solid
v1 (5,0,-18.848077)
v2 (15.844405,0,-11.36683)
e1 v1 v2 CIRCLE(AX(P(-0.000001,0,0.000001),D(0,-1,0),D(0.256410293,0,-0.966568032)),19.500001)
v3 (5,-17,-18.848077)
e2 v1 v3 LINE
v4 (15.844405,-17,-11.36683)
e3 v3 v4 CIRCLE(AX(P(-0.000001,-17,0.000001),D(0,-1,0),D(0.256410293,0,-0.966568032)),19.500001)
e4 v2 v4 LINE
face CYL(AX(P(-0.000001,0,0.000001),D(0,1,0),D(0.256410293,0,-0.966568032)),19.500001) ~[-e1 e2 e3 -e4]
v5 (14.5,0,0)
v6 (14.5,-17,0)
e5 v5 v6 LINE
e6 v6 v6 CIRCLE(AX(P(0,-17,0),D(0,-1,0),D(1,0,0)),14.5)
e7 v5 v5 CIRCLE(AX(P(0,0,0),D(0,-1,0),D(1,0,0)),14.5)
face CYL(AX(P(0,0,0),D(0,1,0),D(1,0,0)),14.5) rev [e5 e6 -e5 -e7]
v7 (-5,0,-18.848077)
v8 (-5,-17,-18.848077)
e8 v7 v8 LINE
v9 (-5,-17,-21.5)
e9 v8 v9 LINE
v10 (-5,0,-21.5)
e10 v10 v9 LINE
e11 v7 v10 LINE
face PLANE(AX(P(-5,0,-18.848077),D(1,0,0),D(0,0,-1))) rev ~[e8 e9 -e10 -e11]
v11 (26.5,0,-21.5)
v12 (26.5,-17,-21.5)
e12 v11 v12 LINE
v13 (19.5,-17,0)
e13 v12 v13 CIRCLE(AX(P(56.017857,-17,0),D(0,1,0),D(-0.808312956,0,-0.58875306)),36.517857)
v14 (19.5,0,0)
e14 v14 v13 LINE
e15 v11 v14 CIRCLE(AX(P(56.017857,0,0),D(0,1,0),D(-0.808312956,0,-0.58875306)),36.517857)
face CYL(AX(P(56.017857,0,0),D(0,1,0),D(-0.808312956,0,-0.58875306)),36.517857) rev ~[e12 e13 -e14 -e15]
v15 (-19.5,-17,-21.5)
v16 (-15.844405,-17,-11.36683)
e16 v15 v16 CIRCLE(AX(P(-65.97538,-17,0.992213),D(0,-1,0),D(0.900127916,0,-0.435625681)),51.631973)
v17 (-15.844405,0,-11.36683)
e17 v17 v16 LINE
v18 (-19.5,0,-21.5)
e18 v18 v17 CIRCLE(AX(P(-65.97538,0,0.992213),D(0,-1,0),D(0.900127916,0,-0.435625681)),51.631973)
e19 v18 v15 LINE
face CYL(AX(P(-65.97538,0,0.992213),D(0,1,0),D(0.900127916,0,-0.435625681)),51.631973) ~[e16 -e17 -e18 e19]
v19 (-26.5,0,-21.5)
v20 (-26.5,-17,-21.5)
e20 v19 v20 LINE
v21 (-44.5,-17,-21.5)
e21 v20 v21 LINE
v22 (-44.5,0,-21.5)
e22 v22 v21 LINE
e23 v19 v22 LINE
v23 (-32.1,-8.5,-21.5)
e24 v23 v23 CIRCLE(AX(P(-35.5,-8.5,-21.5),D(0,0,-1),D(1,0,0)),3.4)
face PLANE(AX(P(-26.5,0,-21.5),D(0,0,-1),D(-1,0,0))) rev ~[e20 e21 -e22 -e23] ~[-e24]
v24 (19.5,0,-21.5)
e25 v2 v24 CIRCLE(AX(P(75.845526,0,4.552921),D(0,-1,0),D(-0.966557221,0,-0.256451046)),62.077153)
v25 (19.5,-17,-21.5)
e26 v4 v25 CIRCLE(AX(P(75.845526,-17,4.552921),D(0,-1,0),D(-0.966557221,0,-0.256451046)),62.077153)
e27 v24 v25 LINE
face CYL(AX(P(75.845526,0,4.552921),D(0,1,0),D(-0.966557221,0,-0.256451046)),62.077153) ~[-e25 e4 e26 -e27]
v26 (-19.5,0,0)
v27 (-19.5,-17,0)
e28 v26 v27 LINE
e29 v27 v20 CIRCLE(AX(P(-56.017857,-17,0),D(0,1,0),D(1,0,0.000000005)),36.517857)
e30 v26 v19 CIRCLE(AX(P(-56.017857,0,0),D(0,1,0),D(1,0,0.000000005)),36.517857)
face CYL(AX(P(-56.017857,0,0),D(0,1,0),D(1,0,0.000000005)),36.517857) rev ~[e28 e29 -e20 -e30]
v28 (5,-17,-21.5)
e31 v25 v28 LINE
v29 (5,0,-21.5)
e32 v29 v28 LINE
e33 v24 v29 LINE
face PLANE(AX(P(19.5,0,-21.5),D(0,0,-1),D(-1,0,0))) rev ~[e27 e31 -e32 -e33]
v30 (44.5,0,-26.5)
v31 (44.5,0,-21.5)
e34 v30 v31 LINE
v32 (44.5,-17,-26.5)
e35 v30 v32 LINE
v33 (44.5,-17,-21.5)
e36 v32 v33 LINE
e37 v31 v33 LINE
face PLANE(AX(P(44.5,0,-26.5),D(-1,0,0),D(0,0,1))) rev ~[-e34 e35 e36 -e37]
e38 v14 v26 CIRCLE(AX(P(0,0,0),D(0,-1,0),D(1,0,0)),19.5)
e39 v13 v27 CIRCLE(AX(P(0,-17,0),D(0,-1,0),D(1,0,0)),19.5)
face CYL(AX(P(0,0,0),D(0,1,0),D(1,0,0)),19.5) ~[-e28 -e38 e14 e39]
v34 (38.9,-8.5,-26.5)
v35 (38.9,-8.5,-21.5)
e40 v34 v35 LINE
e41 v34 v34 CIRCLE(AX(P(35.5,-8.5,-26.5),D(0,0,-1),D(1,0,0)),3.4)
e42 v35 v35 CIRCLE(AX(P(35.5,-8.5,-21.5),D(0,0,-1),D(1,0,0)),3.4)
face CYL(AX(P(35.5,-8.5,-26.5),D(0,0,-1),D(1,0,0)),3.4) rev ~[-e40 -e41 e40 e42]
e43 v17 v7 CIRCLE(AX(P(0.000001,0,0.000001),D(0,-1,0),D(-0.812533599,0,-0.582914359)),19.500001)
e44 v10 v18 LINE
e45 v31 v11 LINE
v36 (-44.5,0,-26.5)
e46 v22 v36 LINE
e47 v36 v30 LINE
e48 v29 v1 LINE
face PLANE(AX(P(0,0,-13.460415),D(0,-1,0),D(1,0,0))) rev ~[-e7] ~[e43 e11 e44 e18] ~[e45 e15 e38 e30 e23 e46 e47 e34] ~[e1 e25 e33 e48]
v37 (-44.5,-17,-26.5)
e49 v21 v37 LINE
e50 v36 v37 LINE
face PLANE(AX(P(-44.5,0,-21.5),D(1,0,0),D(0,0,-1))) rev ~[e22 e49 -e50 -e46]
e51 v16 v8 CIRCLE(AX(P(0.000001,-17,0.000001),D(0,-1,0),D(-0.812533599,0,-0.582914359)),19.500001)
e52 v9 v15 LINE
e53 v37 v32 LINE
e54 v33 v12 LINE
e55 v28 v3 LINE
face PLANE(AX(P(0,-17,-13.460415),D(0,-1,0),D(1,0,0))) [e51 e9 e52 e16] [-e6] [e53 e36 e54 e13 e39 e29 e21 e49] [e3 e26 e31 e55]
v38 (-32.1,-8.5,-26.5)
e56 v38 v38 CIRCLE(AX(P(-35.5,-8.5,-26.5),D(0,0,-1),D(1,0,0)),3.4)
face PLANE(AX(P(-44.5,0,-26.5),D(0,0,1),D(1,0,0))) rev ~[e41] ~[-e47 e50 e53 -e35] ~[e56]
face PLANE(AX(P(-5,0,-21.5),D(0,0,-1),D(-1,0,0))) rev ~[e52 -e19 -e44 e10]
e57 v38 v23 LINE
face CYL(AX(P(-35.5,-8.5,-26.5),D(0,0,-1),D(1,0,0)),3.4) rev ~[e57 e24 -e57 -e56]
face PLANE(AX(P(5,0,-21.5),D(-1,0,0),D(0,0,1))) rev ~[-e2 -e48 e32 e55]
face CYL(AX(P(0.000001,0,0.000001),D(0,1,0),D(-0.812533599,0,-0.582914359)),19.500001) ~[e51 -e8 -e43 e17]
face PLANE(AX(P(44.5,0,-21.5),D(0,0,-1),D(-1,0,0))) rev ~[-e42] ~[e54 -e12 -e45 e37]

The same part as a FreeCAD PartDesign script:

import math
import FreeCAD as App
import Part
import Sketcher

V = App.Vector

doc = App.newDocument("Part")
body = doc.addObject("PartDesign::Body", "Body")

# Sketch on XZ plane
sketch1 = body.newObject("Sketcher::SketchObject", "Sketch")
sketch1.AttachmentSupport = (doc.getObject("XZ_Plane"), [""])
sketch1.MapMode = "FlatFace"
sketch1.addGeometry(Part.LineSegment(V(-44.5, -21.5, 0), V(-44.5, -26.5, 0)), False)
sketch1.addGeometry(Part.LineSegment(V(-44.5, -26.5, 0), V(44.5, -26.5, 0)), False)
sketch1.addGeometry(Part.LineSegment(V(44.5, -26.5, 0), V(44.5, -21.5, 0)), False)
sketch1.addGeometry(Part.LineSegment(V(44.5, -21.5, 0), V(26.5, -21.5, 0)), False)
sketch1.addGeometry(Part.ArcOfCircle(Part.Circle(V(56, 0, 0), V(0, 0, 1), 36.5), math.radians(180), math.radians(216)), False)
sketch1.addGeometry(Part.ArcOfCircle(Part.Circle(V(0, 0, 0), V(0, 0, 1), 19.5), math.radians(0), math.radians(180)), False)
sketch1.addGeometry(Part.ArcOfCircle(Part.Circle(V(-56, 0, 0), V(0, 0, 1), 36.5), math.radians(-36), math.radians(0)), False)
sketch1.addGeometry(Part.LineSegment(V(-26.5, -21.5, 0), V(-44.5, -21.5, 0)), False)
sketch1.addGeometry(Part.LineSegment(V(19.5, -21.5, 0), V(5, -21.5, 0)), False)
sketch1.addGeometry(Part.LineSegment(V(5, -21.5, 0), V(5, -18.8, 0)), False)
sketch1.addGeometry(Part.ArcOfCircle(Part.Circle(V(0, 0, 0), V(0, 0, 1), 19.5), math.radians(-75), math.radians(-36)), False)
sketch1.addGeometry(Part.ArcOfCircle(Part.Circle(V(75.8, 4.6, 0), V(0, 0, 1), 62.1), math.radians(-165.14), math.radians(-155.19)), False)
sketch1.addGeometry(Part.LineSegment(V(-5, -21.5, 0), V(-19.5, -21.5, 0)), False)
sketch1.addGeometry(Part.ArcOfCircle(Part.Circle(V(-66, 1, 0), V(0, 0, 1), 51.6), math.radians(-25.83), math.radians(-13.85)), False)
sketch1.addGeometry(Part.ArcOfCircle(Part.Circle(V(0, 0, 0), V(0, 0, 1), 19.5), math.radians(-144), math.radians(-105)), False)
sketch1.addGeometry(Part.LineSegment(V(-5, -18.8, 0), V(-5, -21.5, 0)), False)
sketch1.addGeometry(Part.Circle(V(0, 0, 0), V(0, 0, 1), 14.5), False)
sketch1.addConstraint(Sketcher.Constraint("Coincident", 0, 2, 1, 1))
sketch1.addConstraint(Sketcher.Constraint("Coincident", 1, 2, 2, 1))
sketch1.addConstraint(Sketcher.Constraint("Coincident", 2, 2, 3, 1))
sketch1.addConstraint(Sketcher.Constraint("Coincident", 3, 2, 4, 2))
sketch1.addConstraint(Sketcher.Constraint("Tangent", 4, 1, 5, 1))
sketch1.addConstraint(Sketcher.Constraint("Tangent", 5, 2, 6, 2))
sketch1.addConstraint(Sketcher.Constraint("Coincident", 6, 1, 7, 1))
sketch1.addConstraint(Sketcher.Constraint("Coincident", 7, 2, 0, 1))
sketch1.addConstraint(Sketcher.Constraint("Coincident", 8, 2, 9, 1))
sketch1.addConstraint(Sketcher.Constraint("Coincident", 9, 2, 10, 1))
sketch1.addConstraint(Sketcher.Constraint("Coincident", 10, 2, 11, 1))
sketch1.addConstraint(Sketcher.Constraint("Coincident", 11, 2, 8, 1))
sketch1.addConstraint(Sketcher.Constraint("Coincident", 12, 2, 13, 1))
sketch1.addConstraint(Sketcher.Constraint("Coincident", 13, 2, 14, 1))
sketch1.addConstraint(Sketcher.Constraint("Coincident", 14, 2, 15, 1))
sketch1.addConstraint(Sketcher.Constraint("Coincident", 15, 2, 12, 1))
sketch1.addConstraint(Sketcher.Constraint("Vertical", 0))
sketch1.addConstraint(Sketcher.Constraint("Horizontal", 1))
sketch1.addConstraint(Sketcher.Constraint("Vertical", 2))
sketch1.addConstraint(Sketcher.Constraint("Horizontal", 3))
sketch1.addConstraint(Sketcher.Constraint("Horizontal", 7))
sketch1.addConstraint(Sketcher.Constraint("Horizontal", 8))
sketch1.addConstraint(Sketcher.Constraint("Vertical", 9))
sketch1.addConstraint(Sketcher.Constraint("Horizontal", 12))
sketch1.addConstraint(Sketcher.Constraint("Vertical", 15))
sketch1.addConstraint(Sketcher.Constraint("Coincident", 5, 3, -1, 1))
sketch1.addConstraint(Sketcher.Constraint("Coincident", 10, 3, -1, 1))
sketch1.addConstraint(Sketcher.Constraint("Coincident", 14, 3, -1, 1))
sketch1.addConstraint(Sketcher.Constraint("Coincident", 16, 3, -1, 1))
sketch1.addConstraint(Sketcher.Constraint("Equal", 4, 6))
sketch1.addConstraint(Sketcher.Constraint("Equal", 5, 10))
sketch1.addConstraint(Sketcher.Constraint("Equal", 10, 14))
sketch1.addConstraint(Sketcher.Constraint("Symmetric", 3, 2, 6, 1, -2))
sketch1.addConstraint(Sketcher.Constraint("Symmetric", 11, 2, 12, 2, -2))
sketch1.addConstraint(Sketcher.Constraint("PointOnObject", 4, 3, -1))
sketch1.addConstraint(Sketcher.Constraint("Horizontal", 7, 2, 8, 2))
sketch1.addConstraint(Sketcher.Constraint("Horizontal", 10, 2, 13, 2))
sketch1.addConstraint(Sketcher.Constraint("Horizontal", 9, 2, 14, 2))
sketch1.addConstraint(Sketcher.Constraint("Vertical", 4, 1, 11, 2))
sketch1.addConstraint(Sketcher.Constraint("Equal", 3, 7))
sketch1.addConstraint(Sketcher.Constraint("Diameter", 16, 29.0))
sketch1.addConstraint(Sketcher.Constraint("Radius", 5, 19.5))
sketch1.addConstraint(Sketcher.Constraint("DistanceX", 1, 1, 1, 2, 89.0))
sketch1.addConstraint(Sketcher.Constraint("DistanceX", 3, 2, 3, 1, 18.0))
sketch1.addConstraint(Sketcher.Constraint("DistanceY", 0, 2, 0, 1, 5.0))
sketch1.addConstraint(Sketcher.Constraint("DistanceX", 8, 2, 8, 1, 14.5))
sketch1.addConstraint(Sketcher.Constraint("DistanceY", 0, 2, -1, 1, 26.5))
sketch1.addConstraint(Sketcher.Constraint("Radius", 11, 62.077153))
sketch1.addConstraint(Sketcher.Constraint("Radius", 13, 51.631973))
sketch1.addConstraint(Sketcher.Constraint("DistanceY", -1, 1, 11, 3, 4.552921))
pad1 = body.newObject("PartDesign::Pad", "Pad")
pad1.Profile = sketch1
pad1.Length = 17

# Sketch on XY plane
sketch2 = body.newObject("Sketcher::SketchObject", "Sketch001")
sketch2.AttachmentSupport = (doc.getObject("XY_Plane"), [""])
sketch2.MapMode = "FlatFace"
sketch2.AttachmentOffset = App.Placement(V(0, 0, -26.5), App.Rotation())
sketch2.addGeometry(Part.Circle(V(-35.5, -8.5, 0), V(0, 0, 1), 3.4), False)
sketch2.addGeometry(Part.Circle(V(35.5, -8.5, 0), V(0, 0, 1), 3.4), False)
sketch2.addConstraint(Sketcher.Constraint("Equal", 0, 1))
sketch2.addConstraint(Sketcher.Constraint("Symmetric", 0, 3, 1, 3, -2))
sketch2.addConstraint(Sketcher.Constraint("Diameter", 0, 6.8))
sketch2.addConstraint(Sketcher.Constraint("DistanceX", 0, 3, 1, 3, 71.0))
sketch2.addConstraint(Sketcher.Constraint("DistanceY", 0, 3, -1, 1, 8.5))
pocket1 = body.newObject("PartDesign::Pocket", "Pocket")
pocket1.Profile = sketch2
pocket1.Type = "ThroughAll"
pocket1.Reversed = True

doc.recompute()
